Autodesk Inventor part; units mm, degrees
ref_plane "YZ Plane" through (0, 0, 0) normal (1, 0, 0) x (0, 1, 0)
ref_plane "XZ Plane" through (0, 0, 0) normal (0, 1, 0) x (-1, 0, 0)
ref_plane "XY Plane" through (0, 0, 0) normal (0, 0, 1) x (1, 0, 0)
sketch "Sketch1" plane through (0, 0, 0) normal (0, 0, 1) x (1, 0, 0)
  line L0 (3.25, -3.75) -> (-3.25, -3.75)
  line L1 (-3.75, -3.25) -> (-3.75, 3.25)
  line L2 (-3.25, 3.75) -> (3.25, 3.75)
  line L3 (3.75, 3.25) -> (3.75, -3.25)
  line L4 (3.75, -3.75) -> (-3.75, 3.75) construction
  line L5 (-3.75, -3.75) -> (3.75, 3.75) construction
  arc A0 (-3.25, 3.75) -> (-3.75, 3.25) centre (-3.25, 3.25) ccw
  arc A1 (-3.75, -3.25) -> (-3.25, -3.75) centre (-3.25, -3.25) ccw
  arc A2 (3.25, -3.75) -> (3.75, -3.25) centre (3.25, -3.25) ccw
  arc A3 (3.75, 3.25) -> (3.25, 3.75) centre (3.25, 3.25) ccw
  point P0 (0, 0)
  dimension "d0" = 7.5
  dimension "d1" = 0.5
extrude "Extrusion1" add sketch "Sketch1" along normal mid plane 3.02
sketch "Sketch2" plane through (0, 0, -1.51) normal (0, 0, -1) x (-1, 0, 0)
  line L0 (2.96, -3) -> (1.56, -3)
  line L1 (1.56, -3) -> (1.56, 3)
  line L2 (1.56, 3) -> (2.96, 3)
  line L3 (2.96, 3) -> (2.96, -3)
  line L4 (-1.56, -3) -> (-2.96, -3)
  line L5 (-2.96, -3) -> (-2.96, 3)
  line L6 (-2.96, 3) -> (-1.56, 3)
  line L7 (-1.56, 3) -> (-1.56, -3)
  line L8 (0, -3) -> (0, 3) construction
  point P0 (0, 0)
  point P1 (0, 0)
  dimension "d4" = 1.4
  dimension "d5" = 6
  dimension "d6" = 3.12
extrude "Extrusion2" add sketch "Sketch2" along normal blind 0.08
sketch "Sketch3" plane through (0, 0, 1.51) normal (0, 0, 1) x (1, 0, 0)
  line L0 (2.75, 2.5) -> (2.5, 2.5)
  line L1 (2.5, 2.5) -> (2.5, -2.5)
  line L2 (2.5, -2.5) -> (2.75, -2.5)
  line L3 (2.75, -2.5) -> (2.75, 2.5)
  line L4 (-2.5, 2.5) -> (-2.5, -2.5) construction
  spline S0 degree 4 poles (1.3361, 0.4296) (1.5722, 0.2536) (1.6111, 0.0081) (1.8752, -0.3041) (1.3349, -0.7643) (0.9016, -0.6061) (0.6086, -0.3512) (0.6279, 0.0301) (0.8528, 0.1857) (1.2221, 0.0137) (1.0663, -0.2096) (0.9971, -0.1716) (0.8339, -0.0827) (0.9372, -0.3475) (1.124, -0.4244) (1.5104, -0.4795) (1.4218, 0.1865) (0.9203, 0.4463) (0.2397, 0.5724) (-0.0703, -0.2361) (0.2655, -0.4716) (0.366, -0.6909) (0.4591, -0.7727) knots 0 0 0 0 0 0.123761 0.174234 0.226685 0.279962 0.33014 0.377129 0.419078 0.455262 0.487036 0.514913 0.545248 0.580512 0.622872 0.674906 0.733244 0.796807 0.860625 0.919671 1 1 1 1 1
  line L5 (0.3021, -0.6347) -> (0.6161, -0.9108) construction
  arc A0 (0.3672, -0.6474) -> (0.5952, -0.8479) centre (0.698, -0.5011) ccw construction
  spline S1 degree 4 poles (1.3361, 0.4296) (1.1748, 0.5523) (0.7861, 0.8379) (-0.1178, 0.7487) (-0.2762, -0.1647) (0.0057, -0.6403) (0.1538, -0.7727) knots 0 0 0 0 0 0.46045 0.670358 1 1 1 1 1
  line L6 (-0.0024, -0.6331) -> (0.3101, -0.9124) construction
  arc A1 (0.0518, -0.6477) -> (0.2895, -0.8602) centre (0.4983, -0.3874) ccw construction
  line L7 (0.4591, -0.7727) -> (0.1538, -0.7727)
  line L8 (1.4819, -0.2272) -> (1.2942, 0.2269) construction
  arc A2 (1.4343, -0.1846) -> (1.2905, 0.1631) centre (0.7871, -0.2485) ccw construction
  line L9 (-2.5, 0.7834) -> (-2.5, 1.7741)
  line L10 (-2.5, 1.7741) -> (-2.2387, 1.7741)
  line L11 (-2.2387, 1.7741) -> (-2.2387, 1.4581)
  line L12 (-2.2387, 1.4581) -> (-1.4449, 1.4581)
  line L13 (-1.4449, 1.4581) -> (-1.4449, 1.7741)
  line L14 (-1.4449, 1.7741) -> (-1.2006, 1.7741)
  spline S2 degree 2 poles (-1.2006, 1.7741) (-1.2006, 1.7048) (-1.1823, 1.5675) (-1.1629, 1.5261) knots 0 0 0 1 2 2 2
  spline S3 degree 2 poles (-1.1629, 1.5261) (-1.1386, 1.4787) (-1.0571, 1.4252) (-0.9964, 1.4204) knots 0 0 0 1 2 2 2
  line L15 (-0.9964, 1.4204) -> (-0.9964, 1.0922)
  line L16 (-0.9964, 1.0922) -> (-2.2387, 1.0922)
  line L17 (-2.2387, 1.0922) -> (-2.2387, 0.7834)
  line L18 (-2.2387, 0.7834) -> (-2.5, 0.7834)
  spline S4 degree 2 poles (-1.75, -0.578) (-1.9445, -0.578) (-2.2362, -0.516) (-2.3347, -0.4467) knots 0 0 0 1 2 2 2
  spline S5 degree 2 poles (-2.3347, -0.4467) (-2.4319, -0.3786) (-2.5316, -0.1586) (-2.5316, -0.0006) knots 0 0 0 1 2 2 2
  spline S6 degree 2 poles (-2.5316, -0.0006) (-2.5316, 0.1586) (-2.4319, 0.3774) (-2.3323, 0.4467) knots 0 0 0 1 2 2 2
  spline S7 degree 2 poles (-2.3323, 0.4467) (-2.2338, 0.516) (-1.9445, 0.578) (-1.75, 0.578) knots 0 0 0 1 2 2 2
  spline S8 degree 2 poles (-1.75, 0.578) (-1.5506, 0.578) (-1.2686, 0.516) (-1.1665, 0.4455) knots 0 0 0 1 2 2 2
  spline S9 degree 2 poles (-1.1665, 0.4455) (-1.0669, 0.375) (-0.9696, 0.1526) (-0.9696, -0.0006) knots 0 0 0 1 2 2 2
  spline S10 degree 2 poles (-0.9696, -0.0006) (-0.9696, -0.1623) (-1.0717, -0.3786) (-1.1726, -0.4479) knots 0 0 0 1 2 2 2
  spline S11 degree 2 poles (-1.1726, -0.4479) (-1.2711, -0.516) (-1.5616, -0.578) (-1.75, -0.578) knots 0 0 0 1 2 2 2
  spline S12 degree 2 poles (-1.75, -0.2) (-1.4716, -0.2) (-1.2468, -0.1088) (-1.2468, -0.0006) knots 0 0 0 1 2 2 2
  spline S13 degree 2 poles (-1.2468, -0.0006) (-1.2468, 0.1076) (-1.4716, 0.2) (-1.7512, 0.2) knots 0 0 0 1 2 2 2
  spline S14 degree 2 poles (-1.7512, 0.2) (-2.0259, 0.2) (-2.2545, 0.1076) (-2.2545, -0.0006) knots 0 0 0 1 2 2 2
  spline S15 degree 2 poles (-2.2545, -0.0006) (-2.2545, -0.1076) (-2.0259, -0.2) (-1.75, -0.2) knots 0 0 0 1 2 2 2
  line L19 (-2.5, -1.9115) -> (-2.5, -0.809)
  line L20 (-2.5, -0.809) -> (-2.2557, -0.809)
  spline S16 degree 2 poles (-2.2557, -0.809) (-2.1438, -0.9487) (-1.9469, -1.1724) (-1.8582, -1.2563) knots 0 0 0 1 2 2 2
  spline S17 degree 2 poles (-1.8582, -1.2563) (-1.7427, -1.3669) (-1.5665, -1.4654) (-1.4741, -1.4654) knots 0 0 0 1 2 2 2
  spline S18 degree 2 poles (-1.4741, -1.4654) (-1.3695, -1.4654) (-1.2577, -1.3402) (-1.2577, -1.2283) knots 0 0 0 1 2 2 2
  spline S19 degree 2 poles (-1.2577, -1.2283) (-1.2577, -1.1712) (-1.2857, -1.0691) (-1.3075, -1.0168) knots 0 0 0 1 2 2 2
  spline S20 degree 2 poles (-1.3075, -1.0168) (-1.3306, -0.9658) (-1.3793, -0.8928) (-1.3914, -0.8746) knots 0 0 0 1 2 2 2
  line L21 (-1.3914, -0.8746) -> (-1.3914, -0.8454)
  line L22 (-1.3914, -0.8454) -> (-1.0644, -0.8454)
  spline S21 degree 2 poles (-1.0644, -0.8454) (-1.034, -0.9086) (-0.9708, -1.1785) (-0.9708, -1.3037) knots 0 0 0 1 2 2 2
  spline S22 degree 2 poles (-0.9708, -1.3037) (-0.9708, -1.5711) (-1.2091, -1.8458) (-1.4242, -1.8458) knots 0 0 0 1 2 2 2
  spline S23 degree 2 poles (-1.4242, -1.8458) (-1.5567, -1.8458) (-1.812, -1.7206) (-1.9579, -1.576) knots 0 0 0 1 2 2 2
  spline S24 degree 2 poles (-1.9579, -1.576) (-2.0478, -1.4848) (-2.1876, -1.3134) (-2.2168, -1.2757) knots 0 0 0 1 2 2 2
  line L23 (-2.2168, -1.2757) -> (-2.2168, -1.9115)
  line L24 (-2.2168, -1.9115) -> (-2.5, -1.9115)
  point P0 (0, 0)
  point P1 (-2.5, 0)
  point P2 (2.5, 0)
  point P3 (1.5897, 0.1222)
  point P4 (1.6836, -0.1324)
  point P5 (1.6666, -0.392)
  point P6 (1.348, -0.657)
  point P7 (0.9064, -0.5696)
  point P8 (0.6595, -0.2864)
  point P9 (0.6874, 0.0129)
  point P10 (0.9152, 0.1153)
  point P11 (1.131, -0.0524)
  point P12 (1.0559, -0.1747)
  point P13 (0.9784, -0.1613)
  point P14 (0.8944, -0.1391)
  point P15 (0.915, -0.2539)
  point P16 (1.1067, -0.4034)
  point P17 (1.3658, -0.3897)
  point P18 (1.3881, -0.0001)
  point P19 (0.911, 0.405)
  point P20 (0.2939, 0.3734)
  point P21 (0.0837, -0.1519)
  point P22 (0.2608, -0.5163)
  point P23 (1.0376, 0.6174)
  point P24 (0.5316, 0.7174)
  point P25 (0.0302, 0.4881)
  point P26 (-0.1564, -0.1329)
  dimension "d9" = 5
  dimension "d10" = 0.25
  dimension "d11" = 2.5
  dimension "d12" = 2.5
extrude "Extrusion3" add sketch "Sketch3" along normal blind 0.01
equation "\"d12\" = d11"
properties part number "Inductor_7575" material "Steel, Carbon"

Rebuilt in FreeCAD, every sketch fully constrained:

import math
import FreeCAD as App
import Part
import Sketcher
from FreeCAD import Vector
Q = App.Units.Quantity

doc = App.newDocument("Part")
body = doc.addObject("PartDesign::Body", "Body")

sketch1 = body.newObject("Sketcher::SketchObject", "Sketch")
sketch1.AttachmentSupport = (doc.getObject("XY_Plane"), [""])
sketch1.MapMode = "FlatFace"
sketch1.addGeometry([
    Part.LineSegment(Vector(-3.2, -3.8, 0), Vector(3.2, -3.8, 0)),
    Part.ArcOfCircle(Part.Circle(Vector(3.2, -3.2, 0), Vector(0, 0, 1), 0.5), math.radians(-90), math.radians(0)),
    Part.LineSegment(Vector(3.8, -3.2, 0), Vector(3.8, 3.2, 0)),
    Part.ArcOfCircle(Part.Circle(Vector(3.2, 3.2, 0), Vector(0, 0, 1), 0.5), math.radians(0), math.radians(90)),
    Part.LineSegment(Vector(3.2, 3.8, 0), Vector(-3.2, 3.8, 0)),
    Part.ArcOfCircle(Part.Circle(Vector(-3.2, 3.2, 0), Vector(0, 0, 1), 0.5), math.radians(90), math.radians(180)),
    Part.LineSegment(Vector(-3.8, 3.2, 0), Vector(-3.8, -3.2, 0)),
    Part.ArcOfCircle(Part.Circle(Vector(-3.2, -3.2, 0), Vector(0, 0, 1), 0.5), math.radians(180), math.radians(270)),
], False)
sketch1.addConstraint([
    Sketcher.Constraint("Tangent", 0, 2, 1, 1),
    Sketcher.Constraint("Tangent", 1, 2, 2, 1),
    Sketcher.Constraint("Tangent", 2, 2, 3, 1),
    Sketcher.Constraint("Tangent", 3, 2, 4, 1),
    Sketcher.Constraint("Tangent", 4, 2, 5, 1),
    Sketcher.Constraint("Tangent", 5, 2, 6, 1),
    Sketcher.Constraint("Tangent", 6, 2, 7, 1),
    Sketcher.Constraint("Tangent", 7, 2, 0, 1),
    Sketcher.Constraint("Horizontal", 0),
    Sketcher.Constraint("Vertical", 2),
    Sketcher.Constraint("Horizontal", 4),
    Sketcher.Constraint("Vertical", 6),
    Sketcher.Constraint("Equal", 1, 3),
    Sketcher.Constraint("Equal", 3, 5),
    Sketcher.Constraint("Equal", 5, 7),
    Sketcher.Constraint("Symmetric", 1, 3, 5, 3, -1, 1),
    Sketcher.Constraint("Equal", 4, 2),
    Sketcher.Constraint("Radius", 1, Q("0.5 mm")),
    Sketcher.Constraint("DistanceX", 0, 1, 0, 2, Q("6.5 mm")),
])
pad1 = body.newObject("PartDesign::Pad", "Pad")
pad1.Profile = sketch1
pad1.Length = 3.02
pad1.Midplane = True

sketch2 = body.newObject("Sketcher::SketchObject", "Sketch001")
sketch2.AttachmentSupport = (doc.getObject("XY_Plane"), [""])
sketch2.MapMode = "FlatFace"
sketch2.AttachmentOffset = App.Placement(Vector(0, 0, -1.51), App.Rotation())
sketch2.addGeometry([
    Part.LineSegment(Vector(-1.6, -3, 0), Vector(-3, -3, 0)),
    Part.LineSegment(Vector(-3, -3, 0), Vector(-3, 3, 0)),
    Part.LineSegment(Vector(-3, 3, 0), Vector(-1.6, 3, 0)),
    Part.LineSegment(Vector(-1.6, 3, 0), Vector(-1.6, -3, 0)),
    Part.LineSegment(Vector(3, -3, 0), Vector(1.6, -3, 0)),
    Part.LineSegment(Vector(1.6, -3, 0), Vector(1.6, 3, 0)),
    Part.LineSegment(Vector(1.6, 3, 0), Vector(3, 3, 0)),
    Part.LineSegment(Vector(3, 3, 0), Vector(3, -3, 0)),
], False)
sketch2.addConstraint([
    Sketcher.Constraint("Coincident", 0, 2, 1, 1),
    Sketcher.Constraint("Coincident", 1, 2, 2, 1),
    Sketcher.Constraint("Coincident", 2, 2, 3, 1),
    Sketcher.Constraint("Coincident", 3, 2, 0, 1),
    Sketcher.Constraint("Coincident", 4, 2, 5, 1),
    Sketcher.Constraint("Coincident", 5, 2, 6, 1),
    Sketcher.Constraint("Coincident", 6, 2, 7, 1),
    Sketcher.Constraint("Coincident", 7, 2, 4, 1),
    Sketcher.Constraint("Horizontal", 0),
    Sketcher.Constraint("Vertical", 1),
    Sketcher.Constraint("Horizontal", 2),
    Sketcher.Constraint("Vertical", 3),
    Sketcher.Constraint("Horizontal", 4),
    Sketcher.Constraint("Vertical", 5),
    Sketcher.Constraint("Horizontal", 6),
    Sketcher.Constraint("Vertical", 7),
    Sketcher.Constraint("Symmetric", 2, 2, 4, 2, -1, 1),
    Sketcher.Constraint("Symmetric", 0, 2, 6, 2, -1, 1),
    Sketcher.Constraint("Horizontal", 3, 2, 4, 2),
    Sketcher.Constraint("DistanceY", 1, 1, 1, 2, Q("6 mm")),
    Sketcher.Constraint("DistanceX", 0, 2, 0, 1, Q("1.4 mm")),
    Sketcher.Constraint("DistanceX", 3, 2, 4, 2, Q("3.12 mm")),
])
pad2 = body.newObject("PartDesign::Pad", "Pad001")
pad2.Profile = sketch2
pad2.Length = 0.08
pad2.Reversed = True

sketch3 = body.newObject("Sketcher::SketchObject", "Sketch002")
sketch3.AttachmentSupport = (doc.getObject("XY_Plane"), [""])
sketch3.MapMode = "FlatFace"
sketch3.AttachmentOffset = App.Placement(Vector(0, 0, 1.51), App.Rotation())
sketch3.addGeometry([
    Part.LineSegment(Vector(2.75, -2.5, 0), Vector(2.75, 2.5, 0)),
    Part.LineSegment(Vector(2.75, 2.5, 0), Vector(2.5, 2.5, 0)),
    Part.LineSegment(Vector(2.5, 2.5, 0), Vector(2.5, -2.5, 0)),
    Part.LineSegment(Vector(2.5, -2.5, 0), Vector(2.75, -2.5, 0)),
    Part.BSplineCurve([Vector(1.3361, 0.4296, 0), Vector(1.5722, 0.2536, 0), Vector(1.6111, 0.0081, 0), Vector(1.8752, -0.3041, 0), Vector(1.3349, -0.7643, 0), Vector(0.9016, -0.6061, 0), Vector(0.6086, -0.3512, 0), Vector(0.6279, 0.0301, 0), Vector(0.8528, 0.1857, 0), Vector(1.2221, 0.0137, 0), Vector(1.0663, -0.2096, 0), Vector(0.9971, -0.1716, 0), Vector(0.8339, -0.0827, 0), Vector(0.9372, -0.3475, 0), Vector(1.124, -0.4244, 0), Vector(1.5104, -0.4795, 0), Vector(1.4218, 0.1865, 0), Vector(0.9203, 0.4463, 0), Vector(0.2397, 0.5724, 0), Vector(-0.0703, -0.2361, 0), Vector(0.2655, -0.4716, 0), Vector(0.366, -0.6909, 0), Vector(0.4591, -0.7727, 0)], [5, 1, 1, 1, 1, 1, 1, 1, 1, 1, 1, 1, 1, 1, 1, 1, 1, 1, 1, 5], [0, 0.123761, 0.174234, 0.226685, 0.279962, 0.33014, 0.377129, 0.419078, 0.455262, 0.487036, 0.514913, 0.545248, 0.580512, 0.622872, 0.674906, 0.733244, 0.796807, 0.860625, 0.919671, 1], False, 4, [1, 1, 1, 1, 1, 1, 1, 1, 1, 1, 1, 1, 1, 1, 1, 1, 1, 1, 1, 1, 1, 1, 1], False),
    Part.BSplineCurve([Vector(1.3361, 0.4296, 0), Vector(1.1748, 0.5523, 0), Vector(0.7861, 0.8379, 0), Vector(-0.1178, 0.7487, 0), Vector(-0.2762, -0.1647, 0), Vector(0.0057, -0.6403, 0), Vector(0.1538, -0.7727, 0)], [5, 1, 1, 5], [0, 0.46045, 0.670358, 1], False, 4, [1, 1, 1, 1, 1, 1, 1], False),
    Part.LineSegment(Vector(0.1538, -0.7727, 0), Vector(0.4591, -0.7727, 0)),
    Part.LineSegment(Vector(-2.5, 1.7741, 0), Vector(-2.5, 0.7834, 0)),
    Part.LineSegment(Vector(-2.5, 0.7834, 0), Vector(-2.2387, 0.7834, 0)),
    Part.LineSegment(Vector(-2.2387, 0.7834, 0), Vector(-2.2387, 1.0922, 0)),
    Part.LineSegment(Vector(-2.2387, 1.0922, 0), Vector(-0.9964, 1.0922, 0)),
    Part.LineSegment(Vector(-0.9964, 1.0922, 0), Vector(-0.9964, 1.4204, 0)),
    Part.BSplineCurve([Vector(-1.1629, 1.5261, 0), Vector(-1.1386, 1.4787, 0), Vector(-1.0571, 1.4252, 0), Vector(-0.9964, 1.4204, 0)], [3, 1, 3], [0, 1, 2], False, 2, [1, 1, 1, 1], False),
    Part.BSplineCurve([Vector(-1.2006, 1.7741, 0), Vector(-1.2006, 1.7048, 0), Vector(-1.1823, 1.5675, 0), Vector(-1.1629, 1.5261, 0)], [3, 1, 3], [0, 1, 2], False, 2, [1, 1, 1, 1], False),
    Part.LineSegment(Vector(-1.2006, 1.7741, 0), Vector(-1.4449, 1.7741, 0)),
    Part.LineSegment(Vector(-1.4449, 1.7741, 0), Vector(-1.4449, 1.4581, 0)),
    Part.LineSegment(Vector(-1.4449, 1.4581, 0), Vector(-2.2387, 1.4581, 0)),
    Part.LineSegment(Vector(-2.2387, 1.4581, 0), Vector(-2.2387, 1.7741, 0)),
    Part.LineSegment(Vector(-2.2387, 1.7741, 0), Vector(-2.5, 1.7741, 0)),
    Part.BSplineCurve([Vector(-1.75, -0.578, 0), Vector(-1.9445, -0.578, 0), Vector(-2.2362, -0.516, 0), Vector(-2.3347, -0.4467, 0)], [3, 1, 3], [0, 1, 2], False, 2, [1, 1, 1, 1], False),
    Part.BSplineCurve([Vector(-1.1726, -0.4479, 0), Vector(-1.2711, -0.516, 0), Vector(-1.5616, -0.578, 0), Vector(-1.75, -0.578, 0)], [3, 1, 3], [0, 1, 2], False, 2, [1, 1, 1, 1], False),
    Part.BSplineCurve([Vector(-0.9696, -0.0006, 0), Vector(-0.9696, -0.1623, 0), Vector(-1.0717, -0.3786, 0), Vector(-1.1726, -0.4479, 0)], [3, 1, 3], [0, 1, 2], False, 2, [1, 1, 1, 1], False),
    Part.BSplineCurve([Vector(-1.1665, 0.4455, 0), Vector(-1.0669, 0.375, 0), Vector(-0.9696, 0.1526, 0), Vector(-0.9696, -0.0006, 0)], [3, 1, 3], [0, 1, 2], False, 2, [1, 1, 1, 1], False),
    Part.BSplineCurve([Vector(-1.75, 0.578, 0), Vector(-1.5506, 0.578, 0), Vector(-1.2686, 0.516, 0), Vector(-1.1665, 0.4455, 0)], [3, 1, 3], [0, 1, 2], False, 2, [1, 1, 1, 1], False),
    Part.BSplineCurve([Vector(-2.3323, 0.4467, 0), Vector(-2.2338, 0.516, 0), Vector(-1.9445, 0.578, 0), Vector(-1.75, 0.578, 0)], [3, 1, 3], [0, 1, 2], False, 2, [1, 1, 1, 1], False),
    Part.BSplineCurve([Vector(-2.5316, -0.0006, 0), Vector(-2.5316, 0.1586, 0), Vector(-2.4319, 0.3774, 0), Vector(-2.3323, 0.4467, 0)], [3, 1, 3], [0, 1, 2], False, 2, [1, 1, 1, 1], False),
    Part.BSplineCurve([Vector(-2.3347, -0.4467, 0), Vector(-2.4319, -0.3786, 0), Vector(-2.5316, -0.1586, 0), Vector(-2.5316, -0.0006, 0)], [3, 1, 3], [0, 1, 2], False, 2, [1, 1, 1, 1], False),
    Part.BSplineCurve([Vector(-1.75, -0.2, 0), Vector(-1.4716, -0.2, 0), Vector(-1.2468, -0.1088, 0), Vector(-1.2468, -0.0006, 0)], [3, 1, 3], [0, 1, 2], False, 2, [1, 1, 1, 1], False),
    Part.BSplineCurve([Vector(-2.2545, -0.0006, 0), Vector(-2.2545, -0.1076, 0), Vector(-2.0259, -0.2, 0), Vector(-1.75, -0.2, 0)], [3, 1, 3], [0, 1, 2], False, 2, [1, 1, 1, 1], False),
    Part.BSplineCurve([Vector(-1.7512, 0.2, 0), Vector(-2.0259, 0.2, 0), Vector(-2.2545, 0.1076, 0), Vector(-2.2545, -0.0006, 0)], [3, 1, 3], [0, 1, 2], False, 2, [1, 1, 1, 1], False),
    Part.BSplineCurve([Vector(-1.2468, -0.0006, 0), Vector(-1.2468, 0.1076, 0), Vector(-1.4716, 0.2, 0), Vector(-1.7512, 0.2, 0)], [3, 1, 3], [0, 1, 2], False, 2, [1, 1, 1, 1], False),
    Part.LineSegment(Vector(-2.5, -0.809, 0), Vector(-2.5, -1.9115, 0)),
    Part.LineSegment(Vector(-2.5, -1.9115, 0), Vector(-2.2168, -1.9115, 0)),
    Part.LineSegment(Vector(-2.2168, -1.9115, 0), Vector(-2.2168, -1.2757, 0)),
    Part.BSplineCurve([Vector(-1.9579, -1.576, 0), Vector(-2.0478, -1.4848, 0), Vector(-2.1876, -1.3134, 0), Vector(-2.2168, -1.2757, 0)], [3, 1, 3], [0, 1, 2], False, 2, [1, 1, 1, 1], False),
    Part.BSplineCurve([Vector(-1.4242, -1.8458, 0), Vector(-1.5567, -1.8458, 0), Vector(-1.812, -1.7206, 0), Vector(-1.9579, -1.576, 0)], [3, 1, 3], [0, 1, 2], False, 2, [1, 1, 1, 1], False),
    Part.BSplineCurve([Vector(-0.9708, -1.3037, 0), Vector(-0.9708, -1.5711, 0), Vector(-1.2091, -1.8458, 0), Vector(-1.4242, -1.8458, 0)], [3, 1, 3], [0, 1, 2], False, 2, [1, 1, 1, 1], False),
    Part.BSplineCurve([Vector(-1.0644, -0.8454, 0), Vector(-1.034, -0.9086, 0), Vector(-0.9708, -1.1785, 0), Vector(-0.9708, -1.3037, 0)], [3, 1, 3], [0, 1, 2], False, 2, [1, 1, 1, 1], False),
    Part.LineSegment(Vector(-1.0644, -0.8454, 0), Vector(-1.3914, -0.8454, 0)),
    Part.LineSegment(Vector(-1.3914, -0.8454, 0), Vector(-1.3914, -0.8746, 0)),
    Part.BSplineCurve([Vector(-1.3075, -1.0168, 0), Vector(-1.3306, -0.9658, 0), Vector(-1.3793, -0.8928, 0), Vector(-1.3914, -0.8746, 0)], [3, 1, 3], [0, 1, 2], False, 2, [1, 1, 1, 1], False),
    Part.BSplineCurve([Vector(-1.2577, -1.2283, 0), Vector(-1.2577, -1.1712, 0), Vector(-1.2857, -1.0691, 0), Vector(-1.3075, -1.0168, 0)], [3, 1, 3], [0, 1, 2], False, 2, [1, 1, 1, 1], False),
    Part.BSplineCurve([Vector(-1.4741, -1.4654, 0), Vector(-1.3695, -1.4654, 0), Vector(-1.2577, -1.3402, 0), Vector(-1.2577, -1.2283, 0)], [3, 1, 3], [0, 1, 2], False, 2, [1, 1, 1, 1], False),
    Part.BSplineCurve([Vector(-1.8582, -1.2563, 0), Vector(-1.7427, -1.3669, 0), Vector(-1.5665, -1.4654, 0), Vector(-1.4741, -1.4654, 0)], [3, 1, 3], [0, 1, 2], False, 2, [1, 1, 1, 1], False),
    Part.BSplineCurve([Vector(-2.2557, -0.809, 0), Vector(-2.1438, -0.9487, 0), Vector(-1.9469, -1.1724, 0), Vector(-1.8582, -1.2563, 0)], [3, 1, 3], [0, 1, 2], False, 2, [1, 1, 1, 1], False),
    Part.LineSegment(Vector(-2.2557, -0.809, 0), Vector(-2.5, -0.809, 0)),
], False)
sketch3.addConstraint([
    Sketcher.Constraint("Block", 4),
    Sketcher.Constraint("Block", 5),
    Sketcher.Constraint("Block", 12),
    Sketcher.Constraint("Block", 13),
    Sketcher.Constraint("Block", 19),
    Sketcher.Constraint("Block", 20),
    Sketcher.Constraint("Block", 21),
    Sketcher.Constraint("Block", 22),
    Sketcher.Constraint("Block", 23),
    Sketcher.Constraint("Block", 24),
    Sketcher.Constraint("Block", 25),
    Sketcher.Constraint("Block", 26),
    Sketcher.Constraint("Block", 27),
    Sketcher.Constraint("Block", 28),
    Sketcher.Constraint("Block", 29),
    Sketcher.Constraint("Block", 30),
    Sketcher.Constraint("Block", 34),
    Sketcher.Constraint("Block", 35),
    Sketcher.Constraint("Block", 36),
    Sketcher.Constraint("Block", 37),
    Sketcher.Constraint("Block", 40),
    Sketcher.Constraint("Block", 41),
    Sketcher.Constraint("Block", 42),
    Sketcher.Constraint("Block", 43),
    Sketcher.Constraint("Block", 44),
    Sketcher.Constraint("Coincident", 0, 2, 1, 1),
    Sketcher.Constraint("Coincident", 1, 2, 2, 1),
    Sketcher.Constraint("Coincident", 2, 2, 3, 1),
    Sketcher.Constraint("Coincident", 3, 2, 0, 1),
    Sketcher.Constraint("Coincident", 5, 2, 6, 1),
    Sketcher.Constraint("Coincident", 6, 2, 4, 2),
    Sketcher.Constraint("Coincident", 7, 2, 8, 1),
    Sketcher.Constraint("Coincident", 8, 2, 9, 1),
    Sketcher.Constraint("Coincident", 9, 2, 10, 1),
    Sketcher.Constraint("Coincident", 10, 2, 11, 1),
    Sketcher.Constraint("Coincident", 11, 2, 12, 2),
    Sketcher.Constraint("Coincident", 13, 1, 14, 1),
    Sketcher.Constraint("Coincident", 14, 2, 15, 1),
    Sketcher.Constraint("Coincident", 15, 2, 16, 1),
    Sketcher.Constraint("Coincident", 16, 2, 17, 1),
    Sketcher.Constraint("Coincident", 17, 2, 18, 1),
    Sketcher.Constraint("Coincident", 18, 2, 7, 1),
    Sketcher.Constraint("Coincident", 31, 2, 32, 1),
    Sketcher.Constraint("Coincident", 32, 2, 33, 1),
    Sketcher.Constraint("Coincident", 33, 2, 34, 2),
    Sketcher.Constraint("Coincident", 37, 1, 38, 1),
    Sketcher.Constraint("Coincident", 38, 2, 39, 1),
    Sketcher.Constraint("Coincident", 39, 2, 40, 2),
    Sketcher.Constraint("Coincident", 44, 1, 45, 1),
    Sketcher.Constraint("Coincident", 45, 2, 31, 1),
    Sketcher.Constraint("Vertical", 0),
    Sketcher.Constraint("Horizontal", 1),
    Sketcher.Constraint("Vertical", 2),
    Sketcher.Constraint("Horizontal", 3),
    Sketcher.Constraint("Vertical", 7),
    Sketcher.Constraint("Horizontal", 8),
    Sketcher.Constraint("Vertical", 9),
    Sketcher.Constraint("Horizontal", 10),
    Sketcher.Constraint("Vertical", 11),
    Sketcher.Constraint("Horizontal", 14),
    Sketcher.Constraint("Vertical", 15),
    Sketcher.Constraint("Horizontal", 16),
    Sketcher.Constraint("Vertical", 17),
    Sketcher.Constraint("Horizontal", 18),
    Sketcher.Constraint("Vertical", 31),
    Sketcher.Constraint("Horizontal", 32),
    Sketcher.Constraint("Vertical", 33),
    Sketcher.Constraint("Horizontal", 38),
    Sketcher.Constraint("Vertical", 39),
    Sketcher.Constraint("Horizontal", 45),
    Sketcher.Constraint("DistanceY", 0, 1, 0, 2, Q("5 mm")),
    Sketcher.Constraint("DistanceX", 7, 2, 1, 2, Q("5 mm")),
    Sketcher.Constraint("DistanceX", 1, 2, 1, 1, Q("0.25 mm")),
    Sketcher.Constraint("DistanceY", -1, 1, 0, 2, Q("2.5 mm")),
    Sketcher.Constraint("DistanceX", -1, 1, 1, 2, Q("2.5 mm")),
    Sketcher.Constraint("DistanceX", 31, 2, -1, 1, Q("2.5 mm")),
    Sketcher.Constraint("DistanceY", 15, 2, 15, 1, Q("0.316 mm")),
    Sketcher.Constraint("DistanceY", 17, 1, 17, 2, Q("0.316 mm")),
    Sketcher.Constraint("DistanceX", 8, 1, 8, 2, Q("0.2613 mm")),
    Sketcher.Constraint("DistanceX", 14, 2, 14, 1, Q("0.2443 mm")),
    Sketcher.Constraint("DistanceX", 16, 2, 16, 1, Q("0.7938 mm")),
    Sketcher.Constraint("DistanceY", 7, 2, 7, 1, Q("0.9907 mm")),
    Sketcher.Constraint("DistanceY", 9, 1, 9, 2, Q("0.3088 mm")),
    Sketcher.Constraint("DistanceY", 31, 2, 31, 1, Q("1.1025 mm")),
])
pad3 = body.newObject("PartDesign::Pad", "Pad002")
pad3.Profile = sketch3
pad3.Length = 0.01

doc.recompute()
